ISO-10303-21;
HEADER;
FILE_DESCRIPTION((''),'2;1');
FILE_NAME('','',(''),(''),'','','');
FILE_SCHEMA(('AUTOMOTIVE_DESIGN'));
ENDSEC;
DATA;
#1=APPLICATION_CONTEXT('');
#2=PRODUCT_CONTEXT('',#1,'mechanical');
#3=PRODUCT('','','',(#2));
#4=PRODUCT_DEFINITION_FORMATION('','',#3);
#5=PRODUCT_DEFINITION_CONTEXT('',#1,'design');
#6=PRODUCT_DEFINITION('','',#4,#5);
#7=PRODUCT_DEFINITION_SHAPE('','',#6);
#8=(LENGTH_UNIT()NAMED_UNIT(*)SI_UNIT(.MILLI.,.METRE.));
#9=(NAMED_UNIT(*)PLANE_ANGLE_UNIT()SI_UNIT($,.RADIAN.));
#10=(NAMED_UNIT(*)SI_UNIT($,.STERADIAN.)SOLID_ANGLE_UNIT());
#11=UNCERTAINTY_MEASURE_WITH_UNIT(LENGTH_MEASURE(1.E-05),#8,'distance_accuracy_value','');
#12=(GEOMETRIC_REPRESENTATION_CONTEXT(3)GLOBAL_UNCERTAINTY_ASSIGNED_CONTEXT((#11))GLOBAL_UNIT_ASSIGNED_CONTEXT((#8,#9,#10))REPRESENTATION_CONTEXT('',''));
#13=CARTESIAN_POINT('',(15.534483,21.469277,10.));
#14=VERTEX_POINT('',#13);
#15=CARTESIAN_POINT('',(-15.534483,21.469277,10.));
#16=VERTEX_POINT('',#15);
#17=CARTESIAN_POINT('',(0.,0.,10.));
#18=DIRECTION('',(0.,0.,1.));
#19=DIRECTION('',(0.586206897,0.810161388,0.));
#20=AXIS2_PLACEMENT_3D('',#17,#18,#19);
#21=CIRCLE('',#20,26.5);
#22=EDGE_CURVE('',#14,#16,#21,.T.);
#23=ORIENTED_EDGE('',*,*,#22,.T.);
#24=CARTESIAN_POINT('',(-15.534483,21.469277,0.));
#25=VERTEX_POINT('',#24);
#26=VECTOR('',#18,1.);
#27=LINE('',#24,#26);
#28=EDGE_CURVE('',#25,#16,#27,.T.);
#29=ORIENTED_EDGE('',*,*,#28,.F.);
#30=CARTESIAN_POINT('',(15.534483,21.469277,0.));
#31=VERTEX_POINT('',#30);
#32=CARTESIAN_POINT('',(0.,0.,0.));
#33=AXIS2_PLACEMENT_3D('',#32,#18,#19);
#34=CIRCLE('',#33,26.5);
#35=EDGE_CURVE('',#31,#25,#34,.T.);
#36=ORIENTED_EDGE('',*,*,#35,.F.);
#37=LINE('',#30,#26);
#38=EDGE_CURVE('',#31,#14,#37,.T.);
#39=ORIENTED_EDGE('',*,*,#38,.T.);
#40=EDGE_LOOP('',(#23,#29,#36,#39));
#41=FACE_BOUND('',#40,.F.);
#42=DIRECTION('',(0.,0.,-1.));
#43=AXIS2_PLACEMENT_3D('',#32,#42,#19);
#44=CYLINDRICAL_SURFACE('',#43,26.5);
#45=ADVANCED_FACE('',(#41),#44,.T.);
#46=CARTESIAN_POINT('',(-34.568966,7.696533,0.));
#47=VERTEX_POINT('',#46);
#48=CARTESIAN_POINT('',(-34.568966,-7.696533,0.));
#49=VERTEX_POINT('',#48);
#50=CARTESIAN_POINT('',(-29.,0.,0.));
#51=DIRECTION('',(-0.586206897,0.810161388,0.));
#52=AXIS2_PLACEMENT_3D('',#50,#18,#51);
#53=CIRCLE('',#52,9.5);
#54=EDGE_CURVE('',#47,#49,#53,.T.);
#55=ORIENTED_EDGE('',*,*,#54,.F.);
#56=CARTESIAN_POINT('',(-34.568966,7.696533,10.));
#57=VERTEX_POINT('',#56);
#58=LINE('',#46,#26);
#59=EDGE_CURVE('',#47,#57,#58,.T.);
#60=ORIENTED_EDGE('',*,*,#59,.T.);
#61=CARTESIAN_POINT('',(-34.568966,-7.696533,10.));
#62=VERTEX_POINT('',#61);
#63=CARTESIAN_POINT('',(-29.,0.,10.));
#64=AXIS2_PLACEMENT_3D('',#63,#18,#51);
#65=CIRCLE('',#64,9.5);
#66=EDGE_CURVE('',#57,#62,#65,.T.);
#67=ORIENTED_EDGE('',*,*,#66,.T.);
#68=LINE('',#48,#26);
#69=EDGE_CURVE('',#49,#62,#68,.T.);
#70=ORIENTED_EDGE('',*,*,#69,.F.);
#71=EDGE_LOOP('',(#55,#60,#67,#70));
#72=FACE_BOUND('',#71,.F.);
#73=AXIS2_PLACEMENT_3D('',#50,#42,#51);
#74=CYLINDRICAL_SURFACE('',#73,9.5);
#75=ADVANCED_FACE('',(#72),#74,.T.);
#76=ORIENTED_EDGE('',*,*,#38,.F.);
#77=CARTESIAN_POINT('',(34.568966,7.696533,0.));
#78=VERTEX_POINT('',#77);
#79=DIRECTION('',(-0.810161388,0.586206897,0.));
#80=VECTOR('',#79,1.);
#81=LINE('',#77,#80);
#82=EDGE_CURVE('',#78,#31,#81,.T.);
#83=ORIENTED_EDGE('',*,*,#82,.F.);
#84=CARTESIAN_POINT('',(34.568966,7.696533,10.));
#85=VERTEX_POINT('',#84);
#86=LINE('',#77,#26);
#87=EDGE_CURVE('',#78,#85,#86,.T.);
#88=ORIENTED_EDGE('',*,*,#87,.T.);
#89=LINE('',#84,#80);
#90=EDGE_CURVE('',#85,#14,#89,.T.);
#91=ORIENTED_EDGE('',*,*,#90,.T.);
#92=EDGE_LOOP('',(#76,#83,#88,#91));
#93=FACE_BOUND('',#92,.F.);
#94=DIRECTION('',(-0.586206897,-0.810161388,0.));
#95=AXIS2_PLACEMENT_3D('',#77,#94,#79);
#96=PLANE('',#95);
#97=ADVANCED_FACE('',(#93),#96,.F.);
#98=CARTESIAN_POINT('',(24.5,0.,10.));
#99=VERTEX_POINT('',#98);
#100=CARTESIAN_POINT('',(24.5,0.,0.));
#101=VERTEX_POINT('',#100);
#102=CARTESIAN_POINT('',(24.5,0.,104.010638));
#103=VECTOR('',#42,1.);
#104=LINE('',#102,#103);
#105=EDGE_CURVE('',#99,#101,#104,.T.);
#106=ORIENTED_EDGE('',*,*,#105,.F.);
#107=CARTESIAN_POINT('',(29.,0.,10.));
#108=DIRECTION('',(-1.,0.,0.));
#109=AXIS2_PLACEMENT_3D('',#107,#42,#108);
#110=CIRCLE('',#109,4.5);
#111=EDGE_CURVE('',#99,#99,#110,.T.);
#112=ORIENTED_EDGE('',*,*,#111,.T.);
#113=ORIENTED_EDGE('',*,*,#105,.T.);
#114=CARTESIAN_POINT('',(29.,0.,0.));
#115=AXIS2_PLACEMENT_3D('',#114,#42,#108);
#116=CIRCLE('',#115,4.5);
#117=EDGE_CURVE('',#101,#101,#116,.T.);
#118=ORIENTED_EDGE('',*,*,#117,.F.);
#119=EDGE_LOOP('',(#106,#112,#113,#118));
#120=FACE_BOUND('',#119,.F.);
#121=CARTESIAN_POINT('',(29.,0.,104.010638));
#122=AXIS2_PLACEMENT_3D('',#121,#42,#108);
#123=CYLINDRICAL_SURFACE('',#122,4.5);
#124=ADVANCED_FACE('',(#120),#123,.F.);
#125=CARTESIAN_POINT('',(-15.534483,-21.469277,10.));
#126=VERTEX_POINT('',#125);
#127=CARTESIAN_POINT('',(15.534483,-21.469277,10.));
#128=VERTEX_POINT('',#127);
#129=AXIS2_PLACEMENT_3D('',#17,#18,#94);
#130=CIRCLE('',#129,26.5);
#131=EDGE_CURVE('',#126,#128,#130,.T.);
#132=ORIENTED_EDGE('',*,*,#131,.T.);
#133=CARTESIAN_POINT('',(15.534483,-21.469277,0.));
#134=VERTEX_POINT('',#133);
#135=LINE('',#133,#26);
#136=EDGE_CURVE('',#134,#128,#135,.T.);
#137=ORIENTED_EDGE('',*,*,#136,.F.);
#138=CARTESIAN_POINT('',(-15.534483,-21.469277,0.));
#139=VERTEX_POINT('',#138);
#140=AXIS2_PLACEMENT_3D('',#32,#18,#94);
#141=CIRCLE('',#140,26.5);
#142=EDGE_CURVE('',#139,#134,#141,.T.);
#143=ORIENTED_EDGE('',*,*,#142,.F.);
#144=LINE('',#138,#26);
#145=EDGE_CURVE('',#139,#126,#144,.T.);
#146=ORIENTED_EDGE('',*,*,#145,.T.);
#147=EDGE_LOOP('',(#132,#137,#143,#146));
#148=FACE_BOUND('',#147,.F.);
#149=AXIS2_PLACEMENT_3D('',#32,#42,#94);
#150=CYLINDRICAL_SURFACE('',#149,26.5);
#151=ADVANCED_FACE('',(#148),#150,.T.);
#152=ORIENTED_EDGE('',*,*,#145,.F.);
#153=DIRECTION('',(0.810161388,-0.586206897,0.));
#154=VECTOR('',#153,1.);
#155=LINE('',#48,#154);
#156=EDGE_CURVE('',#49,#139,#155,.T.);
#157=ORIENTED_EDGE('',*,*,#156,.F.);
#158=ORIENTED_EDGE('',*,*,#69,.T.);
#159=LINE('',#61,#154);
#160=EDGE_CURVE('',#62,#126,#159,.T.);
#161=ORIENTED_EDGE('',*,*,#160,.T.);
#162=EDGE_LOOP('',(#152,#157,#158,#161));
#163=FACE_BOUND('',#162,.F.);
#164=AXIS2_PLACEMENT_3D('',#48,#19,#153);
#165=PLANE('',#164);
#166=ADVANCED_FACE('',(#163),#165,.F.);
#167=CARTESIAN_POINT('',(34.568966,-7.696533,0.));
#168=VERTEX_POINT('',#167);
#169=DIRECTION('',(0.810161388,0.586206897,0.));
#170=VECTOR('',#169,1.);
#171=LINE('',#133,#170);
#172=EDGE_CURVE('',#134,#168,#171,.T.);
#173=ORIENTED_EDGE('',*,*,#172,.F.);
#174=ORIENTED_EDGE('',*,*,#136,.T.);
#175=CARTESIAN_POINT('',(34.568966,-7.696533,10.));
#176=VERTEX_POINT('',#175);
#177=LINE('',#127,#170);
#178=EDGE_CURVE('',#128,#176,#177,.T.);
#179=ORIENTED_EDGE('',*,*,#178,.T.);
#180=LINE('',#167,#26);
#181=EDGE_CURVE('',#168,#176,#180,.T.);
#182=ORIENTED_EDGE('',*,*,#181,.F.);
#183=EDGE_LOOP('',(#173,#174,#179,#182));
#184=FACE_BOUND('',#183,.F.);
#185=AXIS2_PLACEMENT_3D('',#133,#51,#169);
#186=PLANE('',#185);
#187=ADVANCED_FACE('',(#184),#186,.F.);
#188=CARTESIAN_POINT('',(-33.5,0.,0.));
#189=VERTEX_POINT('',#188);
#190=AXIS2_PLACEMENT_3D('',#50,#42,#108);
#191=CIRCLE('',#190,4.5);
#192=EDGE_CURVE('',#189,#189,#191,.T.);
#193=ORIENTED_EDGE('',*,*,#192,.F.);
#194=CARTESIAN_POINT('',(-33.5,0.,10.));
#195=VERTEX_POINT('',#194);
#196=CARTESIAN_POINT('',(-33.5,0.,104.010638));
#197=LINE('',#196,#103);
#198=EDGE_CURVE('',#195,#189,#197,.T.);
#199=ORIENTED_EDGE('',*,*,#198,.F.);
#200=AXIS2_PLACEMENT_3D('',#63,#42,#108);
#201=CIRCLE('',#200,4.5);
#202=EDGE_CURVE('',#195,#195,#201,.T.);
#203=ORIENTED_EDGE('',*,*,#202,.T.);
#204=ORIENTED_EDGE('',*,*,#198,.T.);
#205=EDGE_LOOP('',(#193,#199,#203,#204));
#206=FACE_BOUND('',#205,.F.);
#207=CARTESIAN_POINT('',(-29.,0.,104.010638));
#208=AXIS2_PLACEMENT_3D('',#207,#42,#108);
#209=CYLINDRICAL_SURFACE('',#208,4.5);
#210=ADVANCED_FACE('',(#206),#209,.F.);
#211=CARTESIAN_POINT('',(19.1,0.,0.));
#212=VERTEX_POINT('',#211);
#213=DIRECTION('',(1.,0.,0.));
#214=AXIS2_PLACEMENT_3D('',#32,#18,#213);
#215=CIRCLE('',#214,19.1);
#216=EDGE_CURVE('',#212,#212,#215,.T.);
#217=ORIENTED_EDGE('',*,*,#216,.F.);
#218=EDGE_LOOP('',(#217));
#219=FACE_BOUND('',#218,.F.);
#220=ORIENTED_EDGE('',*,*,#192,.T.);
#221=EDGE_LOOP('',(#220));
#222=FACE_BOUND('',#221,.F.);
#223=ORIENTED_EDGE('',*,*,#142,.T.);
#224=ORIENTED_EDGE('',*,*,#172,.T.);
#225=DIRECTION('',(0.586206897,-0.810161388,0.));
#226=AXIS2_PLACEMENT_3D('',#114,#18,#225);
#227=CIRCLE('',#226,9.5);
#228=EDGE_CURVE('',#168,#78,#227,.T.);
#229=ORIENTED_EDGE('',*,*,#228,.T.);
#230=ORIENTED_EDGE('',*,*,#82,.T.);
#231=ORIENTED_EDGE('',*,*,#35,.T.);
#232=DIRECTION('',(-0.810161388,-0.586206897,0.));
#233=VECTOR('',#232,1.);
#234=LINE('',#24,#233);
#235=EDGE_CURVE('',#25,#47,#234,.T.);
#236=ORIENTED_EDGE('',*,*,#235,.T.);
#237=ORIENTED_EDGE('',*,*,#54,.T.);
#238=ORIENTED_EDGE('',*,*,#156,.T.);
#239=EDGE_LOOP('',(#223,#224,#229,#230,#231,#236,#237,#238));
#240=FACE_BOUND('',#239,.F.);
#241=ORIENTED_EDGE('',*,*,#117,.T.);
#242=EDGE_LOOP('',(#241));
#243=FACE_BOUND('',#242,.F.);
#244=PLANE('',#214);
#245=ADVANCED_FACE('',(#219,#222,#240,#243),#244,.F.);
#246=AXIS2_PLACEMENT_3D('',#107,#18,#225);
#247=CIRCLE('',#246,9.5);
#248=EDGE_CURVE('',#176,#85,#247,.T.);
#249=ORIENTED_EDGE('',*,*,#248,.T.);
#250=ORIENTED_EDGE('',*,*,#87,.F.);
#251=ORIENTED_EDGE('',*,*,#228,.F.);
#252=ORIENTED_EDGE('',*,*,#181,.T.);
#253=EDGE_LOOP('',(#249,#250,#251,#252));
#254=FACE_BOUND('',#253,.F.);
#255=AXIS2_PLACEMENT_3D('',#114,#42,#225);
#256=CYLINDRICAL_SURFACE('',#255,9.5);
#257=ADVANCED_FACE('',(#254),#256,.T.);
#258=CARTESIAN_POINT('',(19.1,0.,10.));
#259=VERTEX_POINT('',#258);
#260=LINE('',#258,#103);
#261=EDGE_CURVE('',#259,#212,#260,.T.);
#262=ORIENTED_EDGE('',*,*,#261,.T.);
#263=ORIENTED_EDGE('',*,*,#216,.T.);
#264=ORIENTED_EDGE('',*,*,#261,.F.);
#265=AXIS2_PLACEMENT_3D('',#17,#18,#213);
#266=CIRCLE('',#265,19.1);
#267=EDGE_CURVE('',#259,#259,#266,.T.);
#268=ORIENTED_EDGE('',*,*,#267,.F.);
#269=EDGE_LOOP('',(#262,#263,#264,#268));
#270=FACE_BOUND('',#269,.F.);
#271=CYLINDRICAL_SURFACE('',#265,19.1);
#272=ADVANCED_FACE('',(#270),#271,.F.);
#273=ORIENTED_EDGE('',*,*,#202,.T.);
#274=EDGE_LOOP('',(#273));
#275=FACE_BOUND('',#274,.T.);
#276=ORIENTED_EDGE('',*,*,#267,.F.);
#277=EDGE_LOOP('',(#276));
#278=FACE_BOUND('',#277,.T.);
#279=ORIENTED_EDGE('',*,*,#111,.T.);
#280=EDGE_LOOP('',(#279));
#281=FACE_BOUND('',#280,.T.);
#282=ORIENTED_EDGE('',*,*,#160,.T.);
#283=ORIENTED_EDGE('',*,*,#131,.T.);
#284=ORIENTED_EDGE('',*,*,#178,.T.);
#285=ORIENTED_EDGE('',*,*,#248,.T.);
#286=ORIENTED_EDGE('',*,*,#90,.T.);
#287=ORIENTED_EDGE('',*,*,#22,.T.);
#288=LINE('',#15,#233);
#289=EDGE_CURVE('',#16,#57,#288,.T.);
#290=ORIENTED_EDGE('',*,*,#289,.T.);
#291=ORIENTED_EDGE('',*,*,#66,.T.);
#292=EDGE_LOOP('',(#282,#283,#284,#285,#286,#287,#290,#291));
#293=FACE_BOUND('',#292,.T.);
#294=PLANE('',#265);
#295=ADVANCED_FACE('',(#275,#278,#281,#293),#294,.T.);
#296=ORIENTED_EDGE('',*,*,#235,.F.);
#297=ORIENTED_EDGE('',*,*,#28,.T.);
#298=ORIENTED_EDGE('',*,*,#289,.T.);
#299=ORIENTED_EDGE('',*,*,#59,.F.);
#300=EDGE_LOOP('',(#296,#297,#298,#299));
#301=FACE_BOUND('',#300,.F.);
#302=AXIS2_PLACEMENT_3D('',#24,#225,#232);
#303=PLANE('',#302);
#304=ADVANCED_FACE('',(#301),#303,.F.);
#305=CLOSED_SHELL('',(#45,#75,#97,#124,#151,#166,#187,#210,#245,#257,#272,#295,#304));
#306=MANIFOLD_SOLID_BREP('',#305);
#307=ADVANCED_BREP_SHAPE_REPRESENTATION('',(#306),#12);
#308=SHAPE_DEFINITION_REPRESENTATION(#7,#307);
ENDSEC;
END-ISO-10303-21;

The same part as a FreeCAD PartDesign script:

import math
import FreeCAD as App
import Part
import Sketcher
from FreeCAD import Vector
Q = App.Units.Quantity

doc = App.newDocument("Part")
body = doc.addObject("PartDesign::Body", "Body")

sketch1 = body.newObject("Sketcher::SketchObject", "Sketch")
sketch1.AttachmentSupport = (doc.getObject("XY_Plane"), [""])
sketch1.MapMode = "FlatFace"
sketch1.addGeometry(Part.LineSegment(Vector(-16, 21, 0), Vector(-35, 8, 0)), False)
sketch1.addGeometry(Part.ArcOfCircle(Part.Circle(Vector(-29, 0, 0), Vector(0, 0, 1), 10), math.radians(126), math.radians(234)), False)
sketch1.addGeometry(Part.LineSegment(Vector(-35, -8, 0), Vector(-16, -21, 0)), False)
sketch1.addGeometry(Part.ArcOfCircle(Part.Circle(Vector(0, 0, 0), Vector(0, 0, 1), 26), math.radians(-126), math.radians(-54)), False)
sketch1.addGeometry(Part.LineSegment(Vector(16, -21, 0), Vector(35, -8, 0)), False)
sketch1.addGeometry(Part.ArcOfCircle(Part.Circle(Vector(29, 0, 0), Vector(0, 0, 1), 10), math.radians(-54), math.radians(54)), False)
sketch1.addGeometry(Part.LineSegment(Vector(35, 8, 0), Vector(16, 21, 0)), False)
sketch1.addGeometry(Part.ArcOfCircle(Part.Circle(Vector(0, 0, 0), Vector(0, 0, 1), 26), math.radians(54), math.radians(126)), False)
sketch1.addConstraint(Sketcher.Constraint("Tangent", 0, 2, 1, 1))
sketch1.addConstraint(Sketcher.Constraint("Tangent", 1, 2, 2, 1))
sketch1.addConstraint(Sketcher.Constraint("Tangent", 2, 2, 3, 1))
sketch1.addConstraint(Sketcher.Constraint("Tangent", 3, 2, 4, 1))
sketch1.addConstraint(Sketcher.Constraint("Tangent", 4, 2, 5, 1))
sketch1.addConstraint(Sketcher.Constraint("Tangent", 5, 2, 6, 1))
sketch1.addConstraint(Sketcher.Constraint("Tangent", 6, 2, 7, 1))
sketch1.addConstraint(Sketcher.Constraint("Tangent", 7, 2, 0, 1))
sketch1.addConstraint(Sketcher.Constraint("Coincident", 3, 3, -1, 1))
sketch1.addConstraint(Sketcher.Constraint("Coincident", 7, 3, -1, 1))
sketch1.addConstraint(Sketcher.Constraint("Equal", 1, 5))
sketch1.addConstraint(Sketcher.Constraint("Equal", 3, 7))
sketch1.addConstraint(Sketcher.Constraint("Symmetric", 1, 3, 5, 3, -1, 1))
sketch1.addConstraint(Sketcher.Constraint("PointOnObject", 1, 3, -1))
sketch1.addConstraint(Sketcher.Constraint("Radius", 1, Q("9.5 mm")))
sketch1.addConstraint(Sketcher.Constraint("Radius", 3, Q("26.5 mm")))
sketch1.addConstraint(Sketcher.Constraint("DistanceX", 1, 3, -1, 1, Q("29 mm")))
pad1 = body.newObject("PartDesign::Pad", "Pad")
pad1.Profile = sketch1
pad1.Length = 10

sketch2 = body.newObject("Sketcher::SketchObject", "Sketch001")
sketch2.AttachmentSupport = (doc.getObject("XY_Plane"), [""])
sketch2.MapMode = "FlatFace"
sketch2.AttachmentOffset = App.Placement(Vector(0, 0, 10), App.Rotation())
sketch2.addGeometry(Part.Circle(Vector(-29, 0, 0), Vector(0, 0, 1), 4.5), False)
sketch2.addGeometry(Part.Circle(Vector(29, 0, 0), Vector(0, 0, 1), 4.5), False)
sketch2.addConstraint(Sketcher.Constraint("Equal", 0, 1))
sketch2.addConstraint(Sketcher.Constraint("Symmetric", 0, 3, 1, 3, -1, 1))
sketch2.addConstraint(Sketcher.Constraint("PointOnObject", 0, 3, -1))
sketch2.addConstraint(Sketcher.Constraint("Diameter", 0, Q("9 mm")))
sketch2.addConstraint(Sketcher.Constraint("DistanceX", 0, 3, -1, 1, Q("29 mm")))
doc.recompute()
hole = body.newObject("PartDesign::Hole", "Hole")
hole.Profile = sketch2
hole.ThreadType = "None"
hole.Diameter = 9
hole.DepthType = "ThroughAll"

sketch3 = body.newObject("Sketcher::SketchObject", "Sketch002")
sketch3.AttachmentSupport = (doc.getObject("XY_Plane"), [""])
sketch3.MapMode = "FlatFace"
sketch3.AttachmentOffset = App.Placement(Vector(0, 0, 10), App.Rotation())
sketch3.addGeometry(Part.Circle(Vector(0, 0, 0), Vector(0, 0, 1), 19), False)
sketch3.addConstraint(Sketcher.Constraint("Coincident", 0, 3, -1, 1))
sketch3.addConstraint(Sketcher.Constraint("Diameter", 0, Q("38.2 mm")))
pocket1 = body.newObject("PartDesign::Pocket", "Pocket")
pocket1.Profile = sketch3
pocket1.Type = "ThroughAll"

doc.recompute()
